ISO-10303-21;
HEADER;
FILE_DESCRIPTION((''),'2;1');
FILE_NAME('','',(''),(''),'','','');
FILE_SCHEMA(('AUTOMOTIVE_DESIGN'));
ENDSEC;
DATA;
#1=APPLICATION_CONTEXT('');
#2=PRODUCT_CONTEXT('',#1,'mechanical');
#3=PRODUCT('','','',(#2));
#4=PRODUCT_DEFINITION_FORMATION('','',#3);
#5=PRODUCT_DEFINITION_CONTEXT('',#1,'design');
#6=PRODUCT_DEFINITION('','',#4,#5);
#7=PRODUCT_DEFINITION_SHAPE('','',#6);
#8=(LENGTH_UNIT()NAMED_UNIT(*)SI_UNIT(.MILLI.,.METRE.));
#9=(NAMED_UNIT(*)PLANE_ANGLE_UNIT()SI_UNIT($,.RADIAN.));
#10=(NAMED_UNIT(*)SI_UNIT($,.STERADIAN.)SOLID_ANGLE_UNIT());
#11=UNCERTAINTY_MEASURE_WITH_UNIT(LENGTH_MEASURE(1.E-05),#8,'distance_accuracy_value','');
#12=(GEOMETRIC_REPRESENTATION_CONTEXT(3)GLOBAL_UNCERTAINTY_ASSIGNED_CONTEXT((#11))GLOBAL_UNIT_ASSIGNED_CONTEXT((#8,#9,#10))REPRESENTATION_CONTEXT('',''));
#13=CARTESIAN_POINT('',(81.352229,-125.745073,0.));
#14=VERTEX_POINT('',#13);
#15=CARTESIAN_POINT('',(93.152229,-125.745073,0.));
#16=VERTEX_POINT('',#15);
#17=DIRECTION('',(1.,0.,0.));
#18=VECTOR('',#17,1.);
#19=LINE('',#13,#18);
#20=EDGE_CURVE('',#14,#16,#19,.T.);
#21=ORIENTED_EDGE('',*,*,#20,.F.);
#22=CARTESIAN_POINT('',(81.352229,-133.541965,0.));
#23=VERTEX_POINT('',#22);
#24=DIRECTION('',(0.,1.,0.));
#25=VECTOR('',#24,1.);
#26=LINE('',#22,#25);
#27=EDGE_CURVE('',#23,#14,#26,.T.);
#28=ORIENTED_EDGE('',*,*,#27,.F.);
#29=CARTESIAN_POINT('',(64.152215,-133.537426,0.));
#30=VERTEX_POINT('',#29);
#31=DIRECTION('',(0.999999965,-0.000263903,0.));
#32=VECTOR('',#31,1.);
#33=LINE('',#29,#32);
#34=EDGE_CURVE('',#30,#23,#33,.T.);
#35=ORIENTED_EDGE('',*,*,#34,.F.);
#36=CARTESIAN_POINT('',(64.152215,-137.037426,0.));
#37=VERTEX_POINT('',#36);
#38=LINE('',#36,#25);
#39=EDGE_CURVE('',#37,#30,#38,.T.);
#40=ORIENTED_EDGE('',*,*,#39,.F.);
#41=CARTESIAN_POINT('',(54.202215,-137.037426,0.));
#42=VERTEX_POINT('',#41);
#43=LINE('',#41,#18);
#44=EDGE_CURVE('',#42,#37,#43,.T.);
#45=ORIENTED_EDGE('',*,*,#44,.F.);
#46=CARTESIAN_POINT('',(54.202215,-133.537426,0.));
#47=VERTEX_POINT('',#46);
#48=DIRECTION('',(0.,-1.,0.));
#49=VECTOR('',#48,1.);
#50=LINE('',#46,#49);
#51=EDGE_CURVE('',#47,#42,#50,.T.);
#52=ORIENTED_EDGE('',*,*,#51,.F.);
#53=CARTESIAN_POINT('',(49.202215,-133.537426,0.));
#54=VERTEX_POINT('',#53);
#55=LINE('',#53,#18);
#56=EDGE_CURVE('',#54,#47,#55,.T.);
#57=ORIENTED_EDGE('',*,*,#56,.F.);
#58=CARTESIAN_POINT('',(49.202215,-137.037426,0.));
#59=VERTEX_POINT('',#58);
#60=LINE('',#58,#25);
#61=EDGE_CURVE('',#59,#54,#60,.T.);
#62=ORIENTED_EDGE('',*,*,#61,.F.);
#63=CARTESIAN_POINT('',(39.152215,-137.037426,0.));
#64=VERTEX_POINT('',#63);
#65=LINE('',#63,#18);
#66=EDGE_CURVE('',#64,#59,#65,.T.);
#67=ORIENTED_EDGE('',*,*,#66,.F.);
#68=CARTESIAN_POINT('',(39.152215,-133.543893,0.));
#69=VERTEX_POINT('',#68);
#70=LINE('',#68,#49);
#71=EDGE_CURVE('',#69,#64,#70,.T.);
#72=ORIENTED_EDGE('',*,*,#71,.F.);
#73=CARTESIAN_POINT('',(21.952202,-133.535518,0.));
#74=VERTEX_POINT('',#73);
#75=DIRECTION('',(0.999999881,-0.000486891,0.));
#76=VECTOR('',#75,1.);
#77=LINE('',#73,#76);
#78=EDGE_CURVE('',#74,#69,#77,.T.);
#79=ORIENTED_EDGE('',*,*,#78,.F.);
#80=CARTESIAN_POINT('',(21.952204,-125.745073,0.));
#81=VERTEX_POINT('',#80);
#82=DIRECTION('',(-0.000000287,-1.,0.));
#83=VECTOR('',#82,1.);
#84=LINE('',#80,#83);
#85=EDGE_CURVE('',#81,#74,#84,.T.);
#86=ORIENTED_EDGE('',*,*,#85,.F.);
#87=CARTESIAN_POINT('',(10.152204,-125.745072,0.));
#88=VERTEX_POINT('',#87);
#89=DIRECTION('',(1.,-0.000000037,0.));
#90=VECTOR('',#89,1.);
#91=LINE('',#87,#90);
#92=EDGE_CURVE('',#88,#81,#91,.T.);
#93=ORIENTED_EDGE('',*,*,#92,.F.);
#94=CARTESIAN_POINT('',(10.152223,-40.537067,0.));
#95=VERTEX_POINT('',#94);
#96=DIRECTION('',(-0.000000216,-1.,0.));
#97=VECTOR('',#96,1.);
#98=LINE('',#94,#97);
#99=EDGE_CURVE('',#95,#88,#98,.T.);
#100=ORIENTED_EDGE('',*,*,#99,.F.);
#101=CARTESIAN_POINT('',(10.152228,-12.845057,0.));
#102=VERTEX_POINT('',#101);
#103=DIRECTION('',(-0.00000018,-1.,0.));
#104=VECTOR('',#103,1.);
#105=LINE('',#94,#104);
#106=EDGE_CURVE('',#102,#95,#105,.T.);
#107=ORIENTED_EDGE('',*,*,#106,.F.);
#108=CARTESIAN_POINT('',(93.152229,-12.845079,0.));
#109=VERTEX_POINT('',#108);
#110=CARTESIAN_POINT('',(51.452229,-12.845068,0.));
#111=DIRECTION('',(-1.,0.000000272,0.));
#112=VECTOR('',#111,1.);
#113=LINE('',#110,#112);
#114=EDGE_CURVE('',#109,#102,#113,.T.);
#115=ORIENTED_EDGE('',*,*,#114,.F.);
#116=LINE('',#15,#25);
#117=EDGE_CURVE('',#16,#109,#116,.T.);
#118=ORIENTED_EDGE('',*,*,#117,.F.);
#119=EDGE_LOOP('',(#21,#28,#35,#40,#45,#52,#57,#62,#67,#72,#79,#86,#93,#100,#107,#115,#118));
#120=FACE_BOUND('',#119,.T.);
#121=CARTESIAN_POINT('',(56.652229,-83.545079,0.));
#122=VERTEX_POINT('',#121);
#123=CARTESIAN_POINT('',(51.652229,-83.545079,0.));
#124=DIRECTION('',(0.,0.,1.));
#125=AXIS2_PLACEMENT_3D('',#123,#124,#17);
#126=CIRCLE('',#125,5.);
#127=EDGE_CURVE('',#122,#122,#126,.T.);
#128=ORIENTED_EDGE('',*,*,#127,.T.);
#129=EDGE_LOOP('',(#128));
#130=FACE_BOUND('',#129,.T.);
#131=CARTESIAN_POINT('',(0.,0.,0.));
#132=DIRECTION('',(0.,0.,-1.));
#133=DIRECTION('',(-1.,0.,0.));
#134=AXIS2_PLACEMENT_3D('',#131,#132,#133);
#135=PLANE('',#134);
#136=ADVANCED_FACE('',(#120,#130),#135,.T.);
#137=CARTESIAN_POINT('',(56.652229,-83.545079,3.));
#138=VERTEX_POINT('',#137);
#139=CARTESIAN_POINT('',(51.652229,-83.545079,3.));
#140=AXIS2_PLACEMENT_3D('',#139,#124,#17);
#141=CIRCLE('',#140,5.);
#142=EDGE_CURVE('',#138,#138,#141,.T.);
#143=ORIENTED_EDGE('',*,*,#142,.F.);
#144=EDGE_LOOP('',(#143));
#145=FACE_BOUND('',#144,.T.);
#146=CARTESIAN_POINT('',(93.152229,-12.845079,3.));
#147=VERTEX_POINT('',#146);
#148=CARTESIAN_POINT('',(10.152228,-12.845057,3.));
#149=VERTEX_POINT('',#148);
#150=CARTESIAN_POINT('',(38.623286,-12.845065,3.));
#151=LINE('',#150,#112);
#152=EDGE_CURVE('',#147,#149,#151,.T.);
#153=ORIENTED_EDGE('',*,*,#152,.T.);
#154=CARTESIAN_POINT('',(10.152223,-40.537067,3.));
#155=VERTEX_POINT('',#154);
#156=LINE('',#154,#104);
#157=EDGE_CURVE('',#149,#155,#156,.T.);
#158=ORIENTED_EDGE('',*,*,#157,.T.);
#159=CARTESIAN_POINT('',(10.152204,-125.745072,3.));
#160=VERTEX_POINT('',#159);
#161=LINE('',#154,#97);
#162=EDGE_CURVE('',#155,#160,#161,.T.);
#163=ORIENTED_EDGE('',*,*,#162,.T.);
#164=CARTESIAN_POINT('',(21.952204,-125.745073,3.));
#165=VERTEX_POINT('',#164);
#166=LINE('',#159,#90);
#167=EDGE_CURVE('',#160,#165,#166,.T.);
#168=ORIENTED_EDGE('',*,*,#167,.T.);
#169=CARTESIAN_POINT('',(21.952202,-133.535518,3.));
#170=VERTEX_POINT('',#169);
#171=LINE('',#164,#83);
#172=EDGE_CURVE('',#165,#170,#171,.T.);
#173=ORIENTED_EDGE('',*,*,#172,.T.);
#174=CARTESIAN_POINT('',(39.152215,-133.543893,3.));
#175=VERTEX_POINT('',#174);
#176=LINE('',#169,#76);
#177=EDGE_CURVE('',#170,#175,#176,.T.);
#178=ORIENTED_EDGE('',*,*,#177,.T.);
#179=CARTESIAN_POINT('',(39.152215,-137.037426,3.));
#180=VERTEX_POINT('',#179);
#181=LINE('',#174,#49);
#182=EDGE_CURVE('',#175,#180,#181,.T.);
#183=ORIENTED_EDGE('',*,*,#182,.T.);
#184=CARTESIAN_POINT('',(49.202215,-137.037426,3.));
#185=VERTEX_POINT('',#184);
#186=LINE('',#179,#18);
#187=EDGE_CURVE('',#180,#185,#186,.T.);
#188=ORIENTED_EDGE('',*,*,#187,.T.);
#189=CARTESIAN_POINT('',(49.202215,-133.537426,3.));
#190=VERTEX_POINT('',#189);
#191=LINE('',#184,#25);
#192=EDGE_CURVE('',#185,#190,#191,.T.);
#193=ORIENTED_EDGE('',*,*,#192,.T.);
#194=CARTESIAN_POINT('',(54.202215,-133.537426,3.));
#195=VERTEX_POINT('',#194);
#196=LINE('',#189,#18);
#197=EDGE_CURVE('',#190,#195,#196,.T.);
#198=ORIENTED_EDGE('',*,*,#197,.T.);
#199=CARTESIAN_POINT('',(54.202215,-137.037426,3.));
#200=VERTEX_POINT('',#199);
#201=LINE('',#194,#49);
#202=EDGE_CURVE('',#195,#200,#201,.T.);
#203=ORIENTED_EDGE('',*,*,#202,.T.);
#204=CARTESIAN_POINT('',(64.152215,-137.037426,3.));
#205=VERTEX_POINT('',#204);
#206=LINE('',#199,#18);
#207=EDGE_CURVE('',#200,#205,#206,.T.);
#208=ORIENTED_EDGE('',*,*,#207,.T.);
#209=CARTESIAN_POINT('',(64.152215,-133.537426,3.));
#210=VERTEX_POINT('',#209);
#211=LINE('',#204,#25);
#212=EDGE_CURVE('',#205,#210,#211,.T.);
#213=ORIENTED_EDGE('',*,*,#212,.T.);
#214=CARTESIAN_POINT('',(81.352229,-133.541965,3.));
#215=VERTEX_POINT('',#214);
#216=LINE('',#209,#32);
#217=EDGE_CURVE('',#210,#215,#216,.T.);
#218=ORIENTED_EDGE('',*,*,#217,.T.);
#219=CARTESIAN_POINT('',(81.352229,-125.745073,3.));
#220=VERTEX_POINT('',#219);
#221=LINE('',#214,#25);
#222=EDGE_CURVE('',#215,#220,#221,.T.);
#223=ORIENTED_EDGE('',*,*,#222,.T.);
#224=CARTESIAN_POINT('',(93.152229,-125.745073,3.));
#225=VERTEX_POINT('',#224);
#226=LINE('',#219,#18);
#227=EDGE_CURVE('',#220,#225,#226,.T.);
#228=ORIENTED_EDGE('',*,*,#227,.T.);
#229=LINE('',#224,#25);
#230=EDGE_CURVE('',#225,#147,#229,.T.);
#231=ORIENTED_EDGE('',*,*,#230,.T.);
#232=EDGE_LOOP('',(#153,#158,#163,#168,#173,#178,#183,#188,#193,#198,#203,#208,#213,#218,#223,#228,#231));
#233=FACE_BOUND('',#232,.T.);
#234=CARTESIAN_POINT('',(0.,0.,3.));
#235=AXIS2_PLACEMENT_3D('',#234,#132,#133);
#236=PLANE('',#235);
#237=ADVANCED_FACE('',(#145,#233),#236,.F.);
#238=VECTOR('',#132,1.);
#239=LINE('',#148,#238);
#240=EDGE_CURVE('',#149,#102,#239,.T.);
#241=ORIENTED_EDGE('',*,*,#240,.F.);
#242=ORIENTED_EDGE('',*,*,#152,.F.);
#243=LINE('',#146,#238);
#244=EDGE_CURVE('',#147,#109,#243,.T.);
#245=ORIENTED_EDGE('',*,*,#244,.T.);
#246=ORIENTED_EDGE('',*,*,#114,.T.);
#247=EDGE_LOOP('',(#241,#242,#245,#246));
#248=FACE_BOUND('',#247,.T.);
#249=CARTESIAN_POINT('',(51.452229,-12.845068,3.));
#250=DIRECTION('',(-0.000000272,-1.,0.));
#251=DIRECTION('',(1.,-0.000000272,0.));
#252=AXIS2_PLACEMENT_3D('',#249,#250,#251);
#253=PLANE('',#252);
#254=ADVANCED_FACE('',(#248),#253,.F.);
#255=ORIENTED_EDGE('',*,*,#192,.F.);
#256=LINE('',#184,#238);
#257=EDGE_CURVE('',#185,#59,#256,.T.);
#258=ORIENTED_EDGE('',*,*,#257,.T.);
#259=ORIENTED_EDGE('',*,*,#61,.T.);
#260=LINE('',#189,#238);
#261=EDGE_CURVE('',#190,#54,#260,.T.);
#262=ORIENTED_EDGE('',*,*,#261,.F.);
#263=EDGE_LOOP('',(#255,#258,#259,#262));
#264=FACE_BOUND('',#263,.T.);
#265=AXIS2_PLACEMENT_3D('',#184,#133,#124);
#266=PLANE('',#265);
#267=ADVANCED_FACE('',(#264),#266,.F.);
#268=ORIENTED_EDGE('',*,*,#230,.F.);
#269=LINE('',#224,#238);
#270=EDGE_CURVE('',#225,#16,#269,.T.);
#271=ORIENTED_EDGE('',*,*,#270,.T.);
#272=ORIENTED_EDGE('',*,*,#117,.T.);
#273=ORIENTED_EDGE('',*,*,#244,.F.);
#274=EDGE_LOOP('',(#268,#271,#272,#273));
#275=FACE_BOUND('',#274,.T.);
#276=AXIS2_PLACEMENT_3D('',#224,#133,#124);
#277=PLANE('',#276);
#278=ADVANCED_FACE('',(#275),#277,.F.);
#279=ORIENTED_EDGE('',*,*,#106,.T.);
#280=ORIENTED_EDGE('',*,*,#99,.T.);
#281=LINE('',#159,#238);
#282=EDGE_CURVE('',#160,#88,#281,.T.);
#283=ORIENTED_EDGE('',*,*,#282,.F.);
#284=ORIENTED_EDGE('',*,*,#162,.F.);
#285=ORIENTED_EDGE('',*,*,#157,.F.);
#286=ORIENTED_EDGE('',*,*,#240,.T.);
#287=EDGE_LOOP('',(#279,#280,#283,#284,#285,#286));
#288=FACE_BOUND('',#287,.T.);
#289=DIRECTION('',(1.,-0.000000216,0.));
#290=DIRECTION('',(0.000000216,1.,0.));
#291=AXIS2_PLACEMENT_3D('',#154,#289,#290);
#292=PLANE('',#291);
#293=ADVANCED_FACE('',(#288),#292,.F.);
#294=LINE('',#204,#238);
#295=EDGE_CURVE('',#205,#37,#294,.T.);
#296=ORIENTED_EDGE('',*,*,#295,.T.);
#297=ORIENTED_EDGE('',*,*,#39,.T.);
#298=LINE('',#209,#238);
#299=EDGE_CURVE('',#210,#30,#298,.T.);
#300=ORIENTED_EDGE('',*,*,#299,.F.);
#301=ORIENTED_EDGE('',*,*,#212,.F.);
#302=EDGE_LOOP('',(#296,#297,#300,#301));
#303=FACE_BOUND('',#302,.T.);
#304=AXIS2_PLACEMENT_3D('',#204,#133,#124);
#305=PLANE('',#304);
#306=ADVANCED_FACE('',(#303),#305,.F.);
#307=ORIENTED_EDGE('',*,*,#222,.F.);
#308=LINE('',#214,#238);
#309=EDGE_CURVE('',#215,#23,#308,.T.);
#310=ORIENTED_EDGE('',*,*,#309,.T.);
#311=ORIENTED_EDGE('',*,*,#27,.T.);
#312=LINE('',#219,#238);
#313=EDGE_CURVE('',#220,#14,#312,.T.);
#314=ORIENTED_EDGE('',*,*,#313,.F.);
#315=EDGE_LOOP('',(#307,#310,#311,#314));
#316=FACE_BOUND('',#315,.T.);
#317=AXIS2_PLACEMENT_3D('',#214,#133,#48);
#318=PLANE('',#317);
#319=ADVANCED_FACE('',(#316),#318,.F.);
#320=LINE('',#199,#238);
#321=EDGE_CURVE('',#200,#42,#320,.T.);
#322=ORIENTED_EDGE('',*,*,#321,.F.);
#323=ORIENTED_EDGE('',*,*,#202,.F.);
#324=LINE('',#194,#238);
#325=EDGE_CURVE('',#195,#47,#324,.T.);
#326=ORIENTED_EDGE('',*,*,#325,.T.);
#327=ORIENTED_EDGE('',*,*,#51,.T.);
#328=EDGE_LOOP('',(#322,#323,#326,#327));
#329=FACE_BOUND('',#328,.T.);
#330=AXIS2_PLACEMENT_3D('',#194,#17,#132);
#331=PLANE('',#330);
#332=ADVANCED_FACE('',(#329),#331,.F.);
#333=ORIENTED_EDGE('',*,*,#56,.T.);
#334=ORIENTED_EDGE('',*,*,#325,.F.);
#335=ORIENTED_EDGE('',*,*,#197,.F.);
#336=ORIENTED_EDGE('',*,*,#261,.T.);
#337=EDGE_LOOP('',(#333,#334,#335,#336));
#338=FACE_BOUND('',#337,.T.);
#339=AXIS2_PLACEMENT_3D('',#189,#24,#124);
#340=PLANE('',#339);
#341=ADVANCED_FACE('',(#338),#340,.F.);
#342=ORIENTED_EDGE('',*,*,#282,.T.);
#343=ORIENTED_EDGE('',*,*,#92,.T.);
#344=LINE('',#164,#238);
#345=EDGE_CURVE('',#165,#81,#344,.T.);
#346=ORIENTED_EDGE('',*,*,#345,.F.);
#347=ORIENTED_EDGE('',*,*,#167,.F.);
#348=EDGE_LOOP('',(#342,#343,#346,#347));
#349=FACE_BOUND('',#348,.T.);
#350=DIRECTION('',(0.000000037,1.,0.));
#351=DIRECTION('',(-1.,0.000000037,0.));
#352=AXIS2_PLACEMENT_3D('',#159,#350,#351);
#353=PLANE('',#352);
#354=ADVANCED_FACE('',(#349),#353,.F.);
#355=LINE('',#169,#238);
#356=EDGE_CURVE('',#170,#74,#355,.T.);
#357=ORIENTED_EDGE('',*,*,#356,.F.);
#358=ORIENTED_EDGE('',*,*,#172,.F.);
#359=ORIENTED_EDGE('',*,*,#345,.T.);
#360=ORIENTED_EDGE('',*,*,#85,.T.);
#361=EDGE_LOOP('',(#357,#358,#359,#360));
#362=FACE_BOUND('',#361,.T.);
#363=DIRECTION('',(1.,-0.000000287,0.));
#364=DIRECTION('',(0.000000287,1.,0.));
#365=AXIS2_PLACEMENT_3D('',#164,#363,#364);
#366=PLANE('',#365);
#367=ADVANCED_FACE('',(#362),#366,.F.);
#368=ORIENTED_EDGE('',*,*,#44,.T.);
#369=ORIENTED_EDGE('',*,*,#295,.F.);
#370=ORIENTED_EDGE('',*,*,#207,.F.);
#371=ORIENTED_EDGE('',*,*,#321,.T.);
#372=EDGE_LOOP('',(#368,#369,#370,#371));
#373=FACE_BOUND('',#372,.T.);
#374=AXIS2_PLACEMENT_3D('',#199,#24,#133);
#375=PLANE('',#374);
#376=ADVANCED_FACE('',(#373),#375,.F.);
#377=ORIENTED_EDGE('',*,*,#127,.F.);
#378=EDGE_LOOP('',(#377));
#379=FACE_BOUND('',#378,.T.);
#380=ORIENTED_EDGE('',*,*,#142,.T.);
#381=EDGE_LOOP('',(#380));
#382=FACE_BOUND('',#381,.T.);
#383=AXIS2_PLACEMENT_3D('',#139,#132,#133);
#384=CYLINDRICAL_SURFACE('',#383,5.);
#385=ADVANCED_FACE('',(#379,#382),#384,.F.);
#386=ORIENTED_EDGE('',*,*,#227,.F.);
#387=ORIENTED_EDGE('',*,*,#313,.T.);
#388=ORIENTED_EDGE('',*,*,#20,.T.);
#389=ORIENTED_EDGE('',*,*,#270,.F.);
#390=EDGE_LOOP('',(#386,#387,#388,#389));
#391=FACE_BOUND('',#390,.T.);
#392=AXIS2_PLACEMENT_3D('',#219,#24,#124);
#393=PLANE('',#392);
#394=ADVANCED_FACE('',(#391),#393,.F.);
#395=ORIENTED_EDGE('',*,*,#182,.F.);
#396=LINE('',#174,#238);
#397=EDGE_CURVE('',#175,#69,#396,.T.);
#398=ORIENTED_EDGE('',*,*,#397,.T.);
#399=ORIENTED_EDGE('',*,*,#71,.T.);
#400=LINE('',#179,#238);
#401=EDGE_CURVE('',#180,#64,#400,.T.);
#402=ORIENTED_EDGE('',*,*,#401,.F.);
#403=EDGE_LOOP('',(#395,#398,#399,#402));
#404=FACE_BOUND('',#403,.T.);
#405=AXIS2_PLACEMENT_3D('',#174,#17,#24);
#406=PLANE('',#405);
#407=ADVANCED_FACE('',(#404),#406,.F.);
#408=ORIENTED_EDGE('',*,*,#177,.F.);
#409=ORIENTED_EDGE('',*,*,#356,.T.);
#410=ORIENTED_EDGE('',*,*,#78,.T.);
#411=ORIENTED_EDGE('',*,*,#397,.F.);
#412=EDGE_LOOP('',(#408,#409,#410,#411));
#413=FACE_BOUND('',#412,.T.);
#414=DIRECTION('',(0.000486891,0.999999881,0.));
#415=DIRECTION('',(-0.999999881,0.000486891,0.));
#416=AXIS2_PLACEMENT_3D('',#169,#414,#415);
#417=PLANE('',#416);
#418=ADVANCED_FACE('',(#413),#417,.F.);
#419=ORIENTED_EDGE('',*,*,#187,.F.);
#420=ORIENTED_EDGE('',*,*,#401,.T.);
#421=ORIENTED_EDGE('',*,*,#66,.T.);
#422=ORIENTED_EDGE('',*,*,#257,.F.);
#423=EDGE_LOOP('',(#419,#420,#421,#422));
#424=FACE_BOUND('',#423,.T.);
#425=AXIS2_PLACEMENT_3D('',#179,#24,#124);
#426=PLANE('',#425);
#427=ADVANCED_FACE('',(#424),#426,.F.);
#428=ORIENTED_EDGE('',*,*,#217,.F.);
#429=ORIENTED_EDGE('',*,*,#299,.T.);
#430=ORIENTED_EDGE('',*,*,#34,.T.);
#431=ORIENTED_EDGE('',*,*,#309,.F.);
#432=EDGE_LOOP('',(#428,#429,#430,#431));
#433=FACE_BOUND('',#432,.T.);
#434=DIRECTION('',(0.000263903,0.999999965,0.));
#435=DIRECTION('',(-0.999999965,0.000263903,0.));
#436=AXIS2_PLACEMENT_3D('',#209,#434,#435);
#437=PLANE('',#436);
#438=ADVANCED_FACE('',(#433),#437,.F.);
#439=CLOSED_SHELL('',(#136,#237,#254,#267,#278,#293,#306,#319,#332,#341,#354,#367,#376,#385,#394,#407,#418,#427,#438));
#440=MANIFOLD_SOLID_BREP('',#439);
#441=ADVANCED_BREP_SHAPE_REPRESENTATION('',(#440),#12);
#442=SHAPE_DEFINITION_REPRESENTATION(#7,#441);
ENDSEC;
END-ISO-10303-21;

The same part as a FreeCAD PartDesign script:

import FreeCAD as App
import Part
import Sketcher
from FreeCAD import Vector
Q = App.Units.Quantity

doc = App.newDocument("Part")
params = doc.addObject("Spreadsheet::Sheet", "Params")
for row, (alias, value) in enumerate([
    ("sketch1_diameter", "10 mm"),
    ("sketch1_width", "5 mm"),
    ("sketch1_width2", "11.8 mm"),
    ("sketch1_height", "3.5 mm"),
    ("sketch1_width3", "10.05 mm"),
    ("pad1_length", "3 mm"),
], start=1):
    params.set(f"A{row}", alias)
    params.set(f"B{row}", "=" + value)
    params.setAlias(f"B{row}", alias)

body = doc.addObject("PartDesign::Body", "Body")

sketch1 = body.newObject("Sketcher::SketchObject", "Sketch")
sketch1.AttachmentSupport = (doc.getObject("XY_Plane"), [""])
sketch1.MapMode = "FlatFace"
sketch1.addGeometry([
    Part.LineSegment(Vector(64.291611, -12.845071, 0), Vector(51.452229, -12.845068, 0)),
    Part.LineSegment(Vector(51.452229, -12.845068, 0), Vector(38.623286, -12.845065, 0)),
    Part.LineSegment(Vector(38.623286, -12.845065, 0), Vector(10.152228, -12.845057, 0)),
    Part.LineSegment(Vector(10.152228, -12.845057, 0), Vector(10.152223, -40.537067, 0)),
    Part.LineSegment(Vector(10.152223, -40.537067, 0), Vector(10.152204, -125.745072, 0)),
    Part.LineSegment(Vector(10.152204, -125.745072, 0), Vector(21.952204, -125.745073, 0)),
    Part.LineSegment(Vector(21.952204, -125.745073, 0), Vector(21.952202, -133.535518, 0)),
    Part.LineSegment(Vector(21.952202, -133.535518, 0), Vector(39.152215, -133.543893, 0)),
    Part.LineSegment(Vector(39.152215, -133.543893, 0), Vector(39.152215, -137.037426, 0)),
    Part.LineSegment(Vector(39.152215, -137.037426, 0), Vector(49.202215, -137.037426, 0)),
    Part.LineSegment(Vector(49.202215, -137.037426, 0), Vector(49.202215, -133.537426, 0)),
    Part.LineSegment(Vector(49.202215, -133.537426, 0), Vector(54.202215, -133.537426, 0)),
    Part.LineSegment(Vector(54.202215, -133.537426, 0), Vector(54.202215, -137.037426, 0)),
    Part.LineSegment(Vector(54.202215, -137.037426, 0), Vector(64.152215, -137.037426, 0)),
    Part.LineSegment(Vector(64.152215, -137.037426, 0), Vector(64.152215, -133.537426, 0)),
    Part.LineSegment(Vector(64.152215, -133.537426, 0), Vector(81.352229, -133.541965, 0)),
    Part.LineSegment(Vector(81.352229, -133.541965, 0), Vector(81.352229, -125.745073, 0)),
    Part.LineSegment(Vector(81.352229, -125.745073, 0), Vector(93.152229, -125.745073, 0)),
    Part.LineSegment(Vector(93.152229, -125.745073, 0), Vector(93.152229, -12.845079, 0)),
    Part.LineSegment(Vector(93.152229, -12.845079, 0), Vector(64.291611, -12.845071, 0)),
    Part.Circle(Vector(51.652229, -83.545079, 0), Vector(0, 0, 1), 5),
], False)
sketch1.addConstraint([
    Sketcher.Constraint("Coincident", 0, 2, 1, 1),
    Sketcher.Constraint("Coincident", 1, 2, 2, 1),
    Sketcher.Constraint("Coincident", 2, 2, 3, 1),
    Sketcher.Constraint("Coincident", 3, 2, 4, 1),
    Sketcher.Constraint("Coincident", 4, 2, 5, 1),
    Sketcher.Constraint("Coincident", 5, 2, 6, 1),
    Sketcher.Constraint("Coincident", 6, 2, 7, 1),
    Sketcher.Constraint("Coincident", 7, 2, 8, 1),
    Sketcher.Constraint("Coincident", 8, 2, 9, 1),
    Sketcher.Constraint("Coincident", 9, 2, 10, 1),
    Sketcher.Constraint("Coincident", 10, 2, 11, 1),
    Sketcher.Constraint("Coincident", 11, 2, 12, 1),
    Sketcher.Constraint("Coincident", 12, 2, 13, 1),
    Sketcher.Constraint("Coincident", 13, 2, 14, 1),
    Sketcher.Constraint("Coincident", 14, 2, 15, 1),
    Sketcher.Constraint("Coincident", 15, 2, 16, 1),
    Sketcher.Constraint("Coincident", 16, 2, 17, 1),
    Sketcher.Constraint("Coincident", 17, 2, 18, 1),
    Sketcher.Constraint("Coincident", 18, 2, 19, 1),
    Sketcher.Constraint("Coincident", 19, 2, 0, 1),
    Sketcher.Constraint("Horizontal", 5),
    Sketcher.Constraint("Vertical", 8),
    Sketcher.Constraint("Horizontal", 9),
    Sketcher.Constraint("Vertical", 10),
    Sketcher.Constraint("Horizontal", 11),
    Sketcher.Constraint("Vertical", 12),
    Sketcher.Constraint("Horizontal", 13),
    Sketcher.Constraint("Vertical", 14),
    Sketcher.Constraint("Vertical", 16),
    Sketcher.Constraint("Horizontal", 17),
    Sketcher.Constraint("Vertical", 18),
    Sketcher.Constraint("Parallel", 0, 1),
    Sketcher.Constraint("Parallel", 1, 2),
    Sketcher.Constraint("Perpendicular", 2, 3),
    Sketcher.Constraint("Parallel", 3, 4),
    Sketcher.Constraint("Parallel", 4, 6),
    Sketcher.Constraint("Perpendicular", 6, 19),
    Sketcher.Constraint("Horizontal", 9, 2, 12, 2),
    Sketcher.Constraint("Horizontal", 11, 2, 14, 2),
    Sketcher.Constraint("Horizontal", 5, 2, 16, 2),
    Sketcher.Constraint("Equal", 5, 17),
    Sketcher.Constraint("Equal", 7, 15),
    Sketcher.Constraint("Diameter", 20, Q("10 mm")),
    Sketcher.Constraint("DistanceX", 11, 1, 11, 2, Q("5 mm")),
    Sketcher.Constraint("Angle", 0, Q("179.999984 deg")),
    Sketcher.Constraint("DistanceX", 5, 1, 5, 2, Q("11.8 mm")),
    Sketcher.Constraint("DistanceY", 10, 1, 10, 2, Q("3.5 mm")),
    Sketcher.Constraint("DistanceX", 8, 2, 13, 2, Q("25 mm")),
    Sketcher.Constraint("DistanceX", 2, 2, 18, 2, Q("83.000001 mm")),
    Sketcher.Constraint("DistanceX", 9, 1, 9, 2, Q("10.05 mm")),
    Sketcher.Constraint("DistanceX", 0, 2, 20, 3, Q("0.2 mm")),
    Sketcher.Constraint("DistanceX", 2, 2, 0, 2, Q("41.300001 mm")),
    Sketcher.Constraint("DistanceY", 20, 3, 18, 2, Q("70.7 mm")),
    Sketcher.Constraint("DistanceY", 3, 2, 0, 2, Q("27.691999 mm")),
    Sketcher.Constraint("DistanceX", -1, 1, 6, 2, Q("21.952202 mm")),
    Sketcher.Constraint("Distance", 2, Q("28.471059 mm")),
    Sketcher.Constraint("DistanceY", 8, 2, 8, 1, Q("3.493533 mm")),
    Sketcher.Constraint("DistanceY", 16, 1, 16, 2, Q("7.796893 mm")),
    Sketcher.Constraint("DistanceY", 18, 1, 18, 2, Q("112.899993 mm")),
    Sketcher.Constraint("DistanceY", 20, 3, -1, 1, Q("83.545079 mm")),
    Sketcher.Constraint("DistanceY", 6, 2, -1, 1, Q("133.535518 mm")),
    Sketcher.Constraint("DistanceX", -1, 1, 19, 2, Q("64.291611 mm")),
    Sketcher.Constraint("DistanceY", 7, 2, 5, 2, Q("7.79882 mm")),
])
sketch1.setExpression("Constraints[42]", "Params.sketch1_diameter")
sketch1.setExpression("Constraints[43]", "Params.sketch1_width")
sketch1.setExpression("Constraints[45]", "Params.sketch1_width2")
sketch1.setExpression("Constraints[46]", "Params.sketch1_height")
sketch1.setExpression("Constraints[49]", "Params.sketch1_width3")
pad1 = body.newObject("PartDesign::Pad", "Pad")
pad1.Profile = sketch1
pad1.setExpression("Length", "Params.pad1_length")

doc.recompute()
